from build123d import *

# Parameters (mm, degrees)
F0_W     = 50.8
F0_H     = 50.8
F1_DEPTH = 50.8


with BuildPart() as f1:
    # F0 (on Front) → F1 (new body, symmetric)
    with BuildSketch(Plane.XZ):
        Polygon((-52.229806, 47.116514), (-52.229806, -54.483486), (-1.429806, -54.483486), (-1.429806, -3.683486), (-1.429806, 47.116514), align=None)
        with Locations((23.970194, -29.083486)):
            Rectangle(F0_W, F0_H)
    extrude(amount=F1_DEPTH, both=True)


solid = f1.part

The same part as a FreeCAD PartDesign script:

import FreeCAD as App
import Part
import Sketcher

V = App.Vector
Q = App.Units.Quantity

doc = App.newDocument("Part")
body = doc.addObject("PartDesign::Body", "Body")

# Sketch on XZ plane
sketch1 = body.newObject("Sketcher::SketchObject", "Sketch")
sketch1.AttachmentSupport = (doc.getObject("XZ_Plane"), [""])
sketch1.MapMode = "FlatFace"
sketch1.addGeometry(Part.LineSegment(V(-52.229806, 47.116514, 0), V(-52.229806, -54.483486, 0)), False)
sketch1.addGeometry(Part.LineSegment(V(-52.229806, -54.483486, 0), V(49.370194, -54.483486, 0)), False)
sketch1.addGeometry(Part.LineSegment(V(49.370194, -54.483486, 0), V(49.370194, -3.683486, 0)), False)
sketch1.addGeometry(Part.LineSegment(V(49.370194, -3.683486, 0), V(-1.429806, -3.683486, 0)), False)
sketch1.addGeometry(Part.LineSegment(V(-1.429806, -3.683486, 0), V(-1.429806, 47.116514, 0)), False)
sketch1.addGeometry(Part.LineSegment(V(-1.429806, 47.116514, 0), V(-52.229806, 47.116514, 0)), False)
sketch1.addConstraint(Sketcher.Constraint("Coincident", 0, 2, 1, 1))
sketch1.addConstraint(Sketcher.Constraint("Coincident", 1, 2, 2, 1))
sketch1.addConstraint(Sketcher.Constraint("Coincident", 2, 2, 3, 1))
sketch1.addConstraint(Sketcher.Constraint("Coincident", 3, 2, 4, 1))
sketch1.addConstraint(Sketcher.Constraint("Coincident", 4, 2, 5, 1))
sketch1.addConstraint(Sketcher.Constraint("Coincident", 5, 2, 0, 1))
sketch1.addConstraint(Sketcher.Constraint("Vertical", 0))
sketch1.addConstraint(Sketcher.Constraint("Horizontal", 1))
sketch1.addConstraint(Sketcher.Constraint("Vertical", 2))
sketch1.addConstraint(Sketcher.Constraint("Horizontal", 3))
sketch1.addConstraint(Sketcher.Constraint("Vertical", 4))
sketch1.addConstraint(Sketcher.Constraint("Horizontal", 5))
sketch1.addConstraint(Sketcher.Constraint("Equal", 3, 5))
sketch1.addConstraint(Sketcher.Constraint("Equal", 1, 0))
sketch1.addConstraint(Sketcher.Constraint("Equal", 5, 2))
sketch1.addConstraint(Sketcher.Constraint("DistanceX", 1, 1, 1, 2, Q("4 in")))
sketch1.addConstraint(Sketcher.Constraint("DistanceX", 0, 2, -1, 1, 52.229806))
sketch1.addConstraint(Sketcher.Constraint("DistanceY", 0, 2, -1, 1, 54.483486))
pad1 = body.newObject("PartDesign::Pad", "Pad")
pad1.Profile = sketch1
pad1.Length = Q("4 in")
pad1.Midplane = True

doc.recompute()
